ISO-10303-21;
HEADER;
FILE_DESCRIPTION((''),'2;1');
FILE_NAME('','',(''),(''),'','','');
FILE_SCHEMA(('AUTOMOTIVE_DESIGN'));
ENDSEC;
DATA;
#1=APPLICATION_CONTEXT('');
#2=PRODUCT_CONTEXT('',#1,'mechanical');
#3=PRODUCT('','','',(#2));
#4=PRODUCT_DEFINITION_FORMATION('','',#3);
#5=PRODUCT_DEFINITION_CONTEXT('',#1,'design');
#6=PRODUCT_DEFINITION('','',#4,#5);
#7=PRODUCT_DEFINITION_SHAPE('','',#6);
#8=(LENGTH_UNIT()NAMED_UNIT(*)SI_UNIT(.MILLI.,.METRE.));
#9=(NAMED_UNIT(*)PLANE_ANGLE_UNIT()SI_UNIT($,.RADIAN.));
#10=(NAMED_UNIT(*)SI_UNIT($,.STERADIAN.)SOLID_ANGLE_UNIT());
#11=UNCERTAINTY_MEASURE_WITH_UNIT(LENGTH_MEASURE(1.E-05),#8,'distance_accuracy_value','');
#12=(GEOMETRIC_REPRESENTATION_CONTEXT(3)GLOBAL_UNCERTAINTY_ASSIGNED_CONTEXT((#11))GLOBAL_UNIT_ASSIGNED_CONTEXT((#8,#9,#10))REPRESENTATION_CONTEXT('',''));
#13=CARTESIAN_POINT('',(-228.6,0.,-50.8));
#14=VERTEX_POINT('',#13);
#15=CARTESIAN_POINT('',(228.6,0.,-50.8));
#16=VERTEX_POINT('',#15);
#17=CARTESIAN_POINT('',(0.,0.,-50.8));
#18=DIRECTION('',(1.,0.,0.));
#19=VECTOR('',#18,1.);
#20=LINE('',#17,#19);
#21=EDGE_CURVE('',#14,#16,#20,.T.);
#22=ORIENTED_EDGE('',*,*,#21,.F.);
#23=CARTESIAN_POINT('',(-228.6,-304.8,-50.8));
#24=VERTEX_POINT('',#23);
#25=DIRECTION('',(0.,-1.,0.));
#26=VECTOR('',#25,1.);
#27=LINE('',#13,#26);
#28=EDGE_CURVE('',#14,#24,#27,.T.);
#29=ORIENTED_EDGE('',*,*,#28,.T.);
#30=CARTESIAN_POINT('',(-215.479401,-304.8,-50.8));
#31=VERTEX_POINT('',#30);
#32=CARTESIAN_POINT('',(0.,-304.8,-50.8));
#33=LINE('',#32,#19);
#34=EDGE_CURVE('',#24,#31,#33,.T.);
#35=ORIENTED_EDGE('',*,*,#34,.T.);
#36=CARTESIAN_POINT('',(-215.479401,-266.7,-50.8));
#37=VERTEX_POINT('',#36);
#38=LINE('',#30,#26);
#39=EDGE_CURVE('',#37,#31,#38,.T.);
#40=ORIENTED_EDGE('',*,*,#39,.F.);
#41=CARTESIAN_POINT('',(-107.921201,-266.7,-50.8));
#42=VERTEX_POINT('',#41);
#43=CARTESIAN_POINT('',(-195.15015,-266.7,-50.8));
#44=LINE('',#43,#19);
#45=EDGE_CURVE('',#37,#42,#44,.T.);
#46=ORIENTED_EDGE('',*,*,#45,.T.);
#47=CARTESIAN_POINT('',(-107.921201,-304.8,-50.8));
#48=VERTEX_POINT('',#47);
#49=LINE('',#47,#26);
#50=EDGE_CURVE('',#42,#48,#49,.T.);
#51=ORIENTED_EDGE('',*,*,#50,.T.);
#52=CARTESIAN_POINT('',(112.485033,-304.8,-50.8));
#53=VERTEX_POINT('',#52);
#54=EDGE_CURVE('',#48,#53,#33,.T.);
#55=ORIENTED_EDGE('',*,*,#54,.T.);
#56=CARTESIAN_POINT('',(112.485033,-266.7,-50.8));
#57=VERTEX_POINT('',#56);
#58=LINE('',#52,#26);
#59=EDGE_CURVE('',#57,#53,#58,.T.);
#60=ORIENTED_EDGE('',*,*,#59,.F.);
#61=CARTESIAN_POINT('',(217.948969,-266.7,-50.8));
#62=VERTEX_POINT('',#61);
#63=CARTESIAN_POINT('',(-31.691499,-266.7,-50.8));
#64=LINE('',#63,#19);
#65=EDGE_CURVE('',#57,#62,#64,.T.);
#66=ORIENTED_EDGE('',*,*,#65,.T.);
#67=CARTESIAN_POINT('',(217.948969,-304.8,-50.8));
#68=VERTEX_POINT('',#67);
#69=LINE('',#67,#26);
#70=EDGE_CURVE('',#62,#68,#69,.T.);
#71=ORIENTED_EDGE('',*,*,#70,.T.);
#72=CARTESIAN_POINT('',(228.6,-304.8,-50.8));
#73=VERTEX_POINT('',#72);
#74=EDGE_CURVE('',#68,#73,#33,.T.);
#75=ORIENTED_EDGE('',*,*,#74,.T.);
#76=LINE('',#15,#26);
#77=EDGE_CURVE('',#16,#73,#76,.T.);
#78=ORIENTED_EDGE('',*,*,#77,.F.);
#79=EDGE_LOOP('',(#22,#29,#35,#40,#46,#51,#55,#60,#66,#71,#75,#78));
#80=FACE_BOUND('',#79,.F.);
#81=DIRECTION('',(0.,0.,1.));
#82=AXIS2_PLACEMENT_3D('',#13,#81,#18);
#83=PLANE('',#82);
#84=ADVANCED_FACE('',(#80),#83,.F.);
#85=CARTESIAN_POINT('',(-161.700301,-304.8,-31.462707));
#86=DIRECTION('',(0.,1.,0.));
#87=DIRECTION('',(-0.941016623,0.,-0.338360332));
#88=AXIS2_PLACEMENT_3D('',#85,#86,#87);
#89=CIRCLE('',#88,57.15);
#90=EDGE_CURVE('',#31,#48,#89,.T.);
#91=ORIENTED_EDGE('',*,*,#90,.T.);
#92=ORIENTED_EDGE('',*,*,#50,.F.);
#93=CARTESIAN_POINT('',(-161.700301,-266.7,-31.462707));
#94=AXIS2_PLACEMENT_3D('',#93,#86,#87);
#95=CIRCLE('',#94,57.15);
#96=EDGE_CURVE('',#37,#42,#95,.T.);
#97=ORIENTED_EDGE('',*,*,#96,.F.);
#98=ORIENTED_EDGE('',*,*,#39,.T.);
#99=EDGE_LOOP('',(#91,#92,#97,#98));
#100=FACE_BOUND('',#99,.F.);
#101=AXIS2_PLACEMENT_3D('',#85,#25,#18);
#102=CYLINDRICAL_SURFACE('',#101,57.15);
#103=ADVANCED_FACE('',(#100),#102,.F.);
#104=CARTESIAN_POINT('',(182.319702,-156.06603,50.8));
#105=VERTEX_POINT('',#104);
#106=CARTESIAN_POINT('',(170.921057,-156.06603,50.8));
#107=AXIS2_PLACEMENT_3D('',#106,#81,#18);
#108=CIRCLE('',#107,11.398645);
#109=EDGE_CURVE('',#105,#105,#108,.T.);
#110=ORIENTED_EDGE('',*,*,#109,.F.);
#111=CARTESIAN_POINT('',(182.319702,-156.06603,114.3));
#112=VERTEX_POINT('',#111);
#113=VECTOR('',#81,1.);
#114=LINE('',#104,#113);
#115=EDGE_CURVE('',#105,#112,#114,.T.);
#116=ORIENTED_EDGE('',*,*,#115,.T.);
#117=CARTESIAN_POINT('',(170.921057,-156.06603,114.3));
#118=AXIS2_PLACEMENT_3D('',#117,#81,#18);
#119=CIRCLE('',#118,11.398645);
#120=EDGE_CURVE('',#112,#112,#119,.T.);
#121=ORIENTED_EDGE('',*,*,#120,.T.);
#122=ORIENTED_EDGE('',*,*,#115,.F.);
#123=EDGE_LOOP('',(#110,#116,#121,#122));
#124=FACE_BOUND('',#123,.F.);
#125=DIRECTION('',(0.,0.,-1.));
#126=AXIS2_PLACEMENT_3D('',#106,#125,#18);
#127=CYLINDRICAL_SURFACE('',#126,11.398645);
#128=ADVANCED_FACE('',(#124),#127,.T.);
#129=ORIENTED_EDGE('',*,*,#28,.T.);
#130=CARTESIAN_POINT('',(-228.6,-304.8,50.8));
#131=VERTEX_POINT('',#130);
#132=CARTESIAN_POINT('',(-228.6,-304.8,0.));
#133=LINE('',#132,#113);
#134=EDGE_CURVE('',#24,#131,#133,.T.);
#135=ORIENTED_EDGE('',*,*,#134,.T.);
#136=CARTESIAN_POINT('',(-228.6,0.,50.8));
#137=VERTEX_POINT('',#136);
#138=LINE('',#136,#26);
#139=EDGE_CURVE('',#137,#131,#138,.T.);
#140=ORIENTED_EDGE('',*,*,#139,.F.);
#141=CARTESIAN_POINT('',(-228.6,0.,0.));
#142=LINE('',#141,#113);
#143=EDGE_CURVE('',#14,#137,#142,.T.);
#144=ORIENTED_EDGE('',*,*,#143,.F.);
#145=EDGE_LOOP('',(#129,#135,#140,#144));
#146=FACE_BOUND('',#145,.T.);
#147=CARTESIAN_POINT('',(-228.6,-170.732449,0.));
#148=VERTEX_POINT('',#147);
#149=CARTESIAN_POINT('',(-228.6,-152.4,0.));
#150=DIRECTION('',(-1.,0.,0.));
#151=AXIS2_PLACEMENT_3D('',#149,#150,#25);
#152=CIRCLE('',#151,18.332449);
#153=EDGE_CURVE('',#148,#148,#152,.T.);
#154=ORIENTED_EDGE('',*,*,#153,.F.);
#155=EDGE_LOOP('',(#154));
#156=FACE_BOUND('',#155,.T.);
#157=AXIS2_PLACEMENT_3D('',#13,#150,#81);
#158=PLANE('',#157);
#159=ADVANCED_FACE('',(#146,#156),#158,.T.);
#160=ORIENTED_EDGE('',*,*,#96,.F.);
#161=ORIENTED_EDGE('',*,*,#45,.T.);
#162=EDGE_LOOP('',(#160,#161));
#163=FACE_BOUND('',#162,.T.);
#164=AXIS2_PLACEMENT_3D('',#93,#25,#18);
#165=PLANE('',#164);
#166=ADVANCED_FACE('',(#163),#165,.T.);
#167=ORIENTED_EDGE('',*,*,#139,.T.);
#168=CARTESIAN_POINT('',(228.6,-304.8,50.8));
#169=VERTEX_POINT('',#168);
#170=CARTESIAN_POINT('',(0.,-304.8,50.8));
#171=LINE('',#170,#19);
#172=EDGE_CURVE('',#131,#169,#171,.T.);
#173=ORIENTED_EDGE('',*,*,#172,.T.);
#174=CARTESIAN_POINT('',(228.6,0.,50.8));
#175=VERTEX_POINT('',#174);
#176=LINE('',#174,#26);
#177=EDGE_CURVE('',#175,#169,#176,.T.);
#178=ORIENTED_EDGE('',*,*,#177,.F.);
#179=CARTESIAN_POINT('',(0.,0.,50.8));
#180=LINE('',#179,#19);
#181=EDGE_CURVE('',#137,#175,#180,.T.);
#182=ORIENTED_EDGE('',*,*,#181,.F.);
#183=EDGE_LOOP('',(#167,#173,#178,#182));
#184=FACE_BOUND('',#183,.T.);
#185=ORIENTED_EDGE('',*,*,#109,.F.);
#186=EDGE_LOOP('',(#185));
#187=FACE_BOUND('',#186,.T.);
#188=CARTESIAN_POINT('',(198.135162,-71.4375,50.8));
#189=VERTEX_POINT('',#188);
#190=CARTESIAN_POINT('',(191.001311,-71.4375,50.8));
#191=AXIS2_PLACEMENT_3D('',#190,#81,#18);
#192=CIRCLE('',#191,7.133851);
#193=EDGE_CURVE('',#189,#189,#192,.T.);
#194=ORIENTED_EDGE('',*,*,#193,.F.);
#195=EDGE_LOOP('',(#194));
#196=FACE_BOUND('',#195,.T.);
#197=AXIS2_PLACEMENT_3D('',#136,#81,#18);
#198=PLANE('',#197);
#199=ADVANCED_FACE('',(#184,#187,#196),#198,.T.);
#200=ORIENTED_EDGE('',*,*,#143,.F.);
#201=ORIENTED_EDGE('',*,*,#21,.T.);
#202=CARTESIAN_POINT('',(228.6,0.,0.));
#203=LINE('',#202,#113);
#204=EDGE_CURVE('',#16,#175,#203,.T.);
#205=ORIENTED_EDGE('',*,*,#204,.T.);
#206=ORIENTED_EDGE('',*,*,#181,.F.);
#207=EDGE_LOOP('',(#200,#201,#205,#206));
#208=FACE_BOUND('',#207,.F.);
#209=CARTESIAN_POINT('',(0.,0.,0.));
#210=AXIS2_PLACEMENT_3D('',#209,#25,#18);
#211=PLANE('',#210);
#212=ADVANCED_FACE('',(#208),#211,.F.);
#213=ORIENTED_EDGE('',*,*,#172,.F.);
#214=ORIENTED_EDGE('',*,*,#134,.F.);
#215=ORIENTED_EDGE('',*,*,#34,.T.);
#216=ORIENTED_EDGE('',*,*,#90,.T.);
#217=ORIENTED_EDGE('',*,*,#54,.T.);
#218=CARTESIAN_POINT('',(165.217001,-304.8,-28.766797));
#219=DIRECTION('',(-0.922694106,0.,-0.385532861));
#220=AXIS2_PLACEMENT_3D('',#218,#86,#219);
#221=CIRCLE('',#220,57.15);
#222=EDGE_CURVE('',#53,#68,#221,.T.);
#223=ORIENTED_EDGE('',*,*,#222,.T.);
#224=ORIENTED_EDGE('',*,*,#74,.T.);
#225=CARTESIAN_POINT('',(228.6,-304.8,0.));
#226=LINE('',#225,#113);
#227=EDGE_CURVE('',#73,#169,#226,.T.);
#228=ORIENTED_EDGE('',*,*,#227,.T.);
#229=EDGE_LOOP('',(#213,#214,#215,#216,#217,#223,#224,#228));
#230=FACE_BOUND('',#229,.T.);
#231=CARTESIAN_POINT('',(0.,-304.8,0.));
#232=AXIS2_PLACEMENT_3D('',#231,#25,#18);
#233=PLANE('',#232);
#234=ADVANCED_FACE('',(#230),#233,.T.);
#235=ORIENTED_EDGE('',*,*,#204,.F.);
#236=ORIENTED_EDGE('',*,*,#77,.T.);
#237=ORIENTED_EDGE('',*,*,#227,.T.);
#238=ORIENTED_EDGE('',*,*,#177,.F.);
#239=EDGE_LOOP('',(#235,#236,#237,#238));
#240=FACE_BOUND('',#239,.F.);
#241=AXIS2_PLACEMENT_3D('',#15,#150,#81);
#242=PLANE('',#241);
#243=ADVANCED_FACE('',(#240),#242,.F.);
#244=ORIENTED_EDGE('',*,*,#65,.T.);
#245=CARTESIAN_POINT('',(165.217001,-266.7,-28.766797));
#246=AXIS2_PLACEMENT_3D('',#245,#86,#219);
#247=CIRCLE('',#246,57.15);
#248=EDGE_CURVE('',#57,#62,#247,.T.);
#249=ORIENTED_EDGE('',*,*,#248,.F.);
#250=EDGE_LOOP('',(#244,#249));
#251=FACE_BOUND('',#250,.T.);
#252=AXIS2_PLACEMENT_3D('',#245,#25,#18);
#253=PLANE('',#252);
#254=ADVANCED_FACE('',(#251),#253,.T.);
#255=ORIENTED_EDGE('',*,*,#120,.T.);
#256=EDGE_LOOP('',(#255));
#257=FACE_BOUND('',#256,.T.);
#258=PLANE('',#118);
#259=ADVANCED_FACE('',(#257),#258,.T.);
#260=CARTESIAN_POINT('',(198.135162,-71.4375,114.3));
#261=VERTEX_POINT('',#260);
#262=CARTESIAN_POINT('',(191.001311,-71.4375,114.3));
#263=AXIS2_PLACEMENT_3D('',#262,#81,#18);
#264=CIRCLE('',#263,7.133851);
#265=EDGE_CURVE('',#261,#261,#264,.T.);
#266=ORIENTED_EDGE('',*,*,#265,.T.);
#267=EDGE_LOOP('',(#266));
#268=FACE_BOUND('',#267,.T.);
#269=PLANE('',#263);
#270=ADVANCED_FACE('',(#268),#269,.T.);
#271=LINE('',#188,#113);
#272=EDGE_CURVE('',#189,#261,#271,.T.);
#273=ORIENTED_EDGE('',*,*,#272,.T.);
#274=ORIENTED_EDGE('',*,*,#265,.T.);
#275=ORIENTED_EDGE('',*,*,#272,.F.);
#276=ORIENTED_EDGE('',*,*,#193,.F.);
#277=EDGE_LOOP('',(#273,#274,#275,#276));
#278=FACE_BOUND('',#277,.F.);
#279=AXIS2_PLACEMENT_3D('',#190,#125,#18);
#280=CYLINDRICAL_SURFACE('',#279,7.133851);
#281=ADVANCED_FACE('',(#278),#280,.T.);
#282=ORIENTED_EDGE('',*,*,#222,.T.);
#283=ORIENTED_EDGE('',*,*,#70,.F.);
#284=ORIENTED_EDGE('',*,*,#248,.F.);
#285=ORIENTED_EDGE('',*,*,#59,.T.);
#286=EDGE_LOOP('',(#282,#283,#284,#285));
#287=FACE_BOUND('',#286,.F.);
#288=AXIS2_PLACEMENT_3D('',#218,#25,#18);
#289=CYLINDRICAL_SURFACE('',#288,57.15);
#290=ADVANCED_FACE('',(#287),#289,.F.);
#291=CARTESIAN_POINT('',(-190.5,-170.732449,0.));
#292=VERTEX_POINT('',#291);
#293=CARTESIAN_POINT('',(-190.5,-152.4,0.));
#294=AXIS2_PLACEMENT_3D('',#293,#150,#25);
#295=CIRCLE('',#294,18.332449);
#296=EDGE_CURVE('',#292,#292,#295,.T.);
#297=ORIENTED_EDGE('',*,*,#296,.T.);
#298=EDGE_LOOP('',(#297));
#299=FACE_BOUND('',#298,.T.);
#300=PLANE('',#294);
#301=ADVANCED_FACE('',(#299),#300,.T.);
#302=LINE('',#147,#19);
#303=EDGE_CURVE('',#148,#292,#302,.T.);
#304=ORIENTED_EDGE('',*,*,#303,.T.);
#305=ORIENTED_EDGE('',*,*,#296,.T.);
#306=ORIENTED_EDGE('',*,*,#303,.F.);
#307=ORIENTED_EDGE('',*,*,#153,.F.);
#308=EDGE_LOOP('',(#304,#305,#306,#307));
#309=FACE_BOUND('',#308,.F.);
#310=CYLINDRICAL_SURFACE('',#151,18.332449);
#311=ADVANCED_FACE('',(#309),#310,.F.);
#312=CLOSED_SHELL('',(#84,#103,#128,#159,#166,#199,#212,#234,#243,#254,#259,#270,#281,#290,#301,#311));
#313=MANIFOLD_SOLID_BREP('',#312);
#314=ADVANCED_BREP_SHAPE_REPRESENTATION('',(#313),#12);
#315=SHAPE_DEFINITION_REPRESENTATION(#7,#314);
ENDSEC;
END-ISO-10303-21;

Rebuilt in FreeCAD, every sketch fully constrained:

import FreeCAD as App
import Part
import Sketcher
from FreeCAD import Vector
Q = App.Units.Quantity

doc = App.newDocument("Part")
body = doc.addObject("PartDesign::Body", "Body")

# Sketch on XZ plane
sketch1 = doc.addObject("Sketcher::SketchObject", "Sketch")
body.addObject(sketch1)
sketch1.AttachmentSupport = (doc.XZ_Plane, [""])
sketch1.MapMode = "FlatFace"
sketch1.addGeometry(Part.LineSegment(Vector(-229, 51, 0), Vector(-229, -51, 0)), False)
sketch1.addGeometry(Part.LineSegment(Vector(-229, -51, 0), Vector(229, -51, 0)), False)
sketch1.addGeometry(Part.LineSegment(Vector(229, -51, 0), Vector(229, 51, 0)), False)
sketch1.addGeometry(Part.LineSegment(Vector(229, 51, 0), Vector(-229, 51, 0)), False)
sketch1.addConstraint(Sketcher.Constraint("Coincident", 0, 2, 1, 1))
sketch1.addConstraint(Sketcher.Constraint("Coincident", 1, 2, 2, 1))
sketch1.addConstraint(Sketcher.Constraint("Coincident", 2, 2, 3, 1))
sketch1.addConstraint(Sketcher.Constraint("Coincident", 3, 2, 0, 1))
sketch1.addConstraint(Sketcher.Constraint("Vertical", 0))
sketch1.addConstraint(Sketcher.Constraint("Horizontal", 1))
sketch1.addConstraint(Sketcher.Constraint("Vertical", 2))
sketch1.addConstraint(Sketcher.Constraint("Horizontal", 3))
sketch1.addConstraint(Sketcher.Constraint("Symmetric", 0, 2, 2, 2, -1, 1))
sketch1.addConstraint(Sketcher.Constraint("DistanceX", 1, 1, 1, 2, Q("18 in")))
sketch1.addConstraint(Sketcher.Constraint("DistanceY", 0, 2, 0, 1, Q("4 in")))
pad1 = doc.addObject("PartDesign::Pad", "Pad")
body.addObject(pad1)
pad1.Profile = sketch1
pad1.Length = Q("12 in")

# Sketch on XZ plane
sketch2 = doc.addObject("Sketcher::SketchObject", "Sketch001")
body.addObject(sketch2)
sketch2.AttachmentSupport = (doc.XZ_Plane, [""])
sketch2.MapMode = "FlatFace"
sketch2.AttachmentOffset = App.Placement(Vector(0, 0, 12 * 25.4), App.Rotation())
sketch2.addGeometry(Part.Circle(Vector(-162, -31, 0), Vector(0, 0, 1), 57), False)
sketch2.addGeometry(Part.Circle(Vector(165, -29, 0), Vector(0, 0, 1), 57), False)
sketch2.addConstraint(Sketcher.Constraint("Equal", 0, 1))
sketch2.addConstraint(Sketcher.Constraint("Diameter", 0, Q("4.5 in")))
sketch2.addConstraint(Sketcher.Constraint("DistanceX", 0, 3, -1, 1, 161.700301))
sketch2.addConstraint(Sketcher.Constraint("DistanceX", -1, 1, 1, 3, 165.217001))
sketch2.addConstraint(Sketcher.Constraint("DistanceY", 0, 3, 1, 3, 2.69591))
sketch2.addConstraint(Sketcher.Constraint("DistanceY", 0, 3, -1, 1, 31.462707))
pocket1 = doc.addObject("PartDesign::Pocket", "Pocket")
body.addObject(pocket1)
pocket1.Profile = sketch2
pocket1.Length = Q("1.5 in")

# Sketch on XY plane
sketch3 = doc.addObject("Sketcher::SketchObject", "Sketch002")
body.addObject(sketch3)
sketch3.AttachmentSupport = (doc.XY_Plane, [""])
sketch3.MapMode = "FlatFace"
sketch3.AttachmentOffset = App.Placement(Vector(0, 0, 2 * 25.4), App.Rotation())
sketch3.addGeometry(Part.Circle(Vector(191, -71, 0), Vector(0, 0, 1), 7), False)
sketch3.addGeometry(Part.Circle(Vector(171, -156, 0), Vector(0, 0, 1), 11), False)
sketch3.addConstraint(Sketcher.Constraint("Diameter", 1, 22.79729))
sketch3.addConstraint(Sketcher.Constraint("DistanceY", 0, 3, -1, 1, Q("2.8125 in")))
sketch3.addConstraint(Sketcher.Constraint("Diameter", 0, 14.267702))
sketch3.addConstraint(Sketcher.Constraint("DistanceX", -1, 1, 0, 3, 191.001311))
sketch3.addConstraint(Sketcher.Constraint("DistanceY", 1, 3, -1, 1, 156.06603))
sketch3.addConstraint(Sketcher.Constraint("DistanceX", -1, 1, 1, 3, 170.921057))
pad2 = doc.addObject("PartDesign::Pad", "Pad001")
body.addObject(pad2)
pad2.Profile = sketch3
pad2.Length = Q("2.5 in")

# Sketch on XY plane
sketch4 = doc.addObject("Sketcher::SketchObject", "Sketch003")
body.addObject(sketch4)
sketch4.AttachmentSupport = (doc.XY_Plane, [""])
sketch4.MapMode = "FlatFace"
sketch4.AttachmentOffset = App.Placement(Vector(0, 0, 2 * 25.4), App.Rotation())
sketch4.addGeometry(Part.Circle(Vector(191, -71, 0), Vector(0, 0, 1), 7), False)
sketch4.addGeometry(Part.Circle(Vector(171, -156, 0), Vector(0, 0, 1), 11), False)
sketch4.addConstraint(Sketcher.Constraint("Diameter", 1, 22.79729))
sketch4.addConstraint(Sketcher.Constraint("DistanceY", 0, 3, -1, 1, Q("2.8125 in")))
sketch4.addConstraint(Sketcher.Constraint("Diameter", 0, 14.267702))
sketch4.addConstraint(Sketcher.Constraint("DistanceX", -1, 1, 0, 3, 191.001311))
sketch4.addConstraint(Sketcher.Constraint("DistanceY", 1, 3, -1, 1, 156.06603))
sketch4.addConstraint(Sketcher.Constraint("DistanceX", -1, 1, 1, 3, 170.921057))
pad3 = doc.addObject("PartDesign::Pad", "Pad002")
body.addObject(pad3)
pad3.Profile = sketch4
pad3.Length = Q("2.5 in")

# Sketch on YZ plane
sketch5 = doc.addObject("Sketcher::SketchObject", "Sketch004")
body.addObject(sketch5)
sketch5.AttachmentSupport = (doc.YZ_Plane, [""])
sketch5.MapMode = "FlatFace"
sketch5.AttachmentOffset = App.Placement(Vector(0, 0, -9 * 25.4), App.Rotation())
sketch5.addGeometry(Part.Circle(Vector(-152, 0, 0), Vector(0, 0, 1), 18), False)
sketch5.addConstraint(Sketcher.Constraint("PointOnObject", 0, 3, -1))
sketch5.addConstraint(Sketcher.Constraint("DistanceX", 0, 3, -1, 1, Q("6 in")))
sketch5.addConstraint(Sketcher.Constraint("Diameter", 0, Q("1.4434999 in")))
pocket2 = doc.addObject("PartDesign::Pocket", "Pocket001")
body.addObject(pocket2)
pocket2.Profile = sketch5
pocket2.Length = Q("1.5 in")
pocket2.Reversed = True

doc.recompute()
